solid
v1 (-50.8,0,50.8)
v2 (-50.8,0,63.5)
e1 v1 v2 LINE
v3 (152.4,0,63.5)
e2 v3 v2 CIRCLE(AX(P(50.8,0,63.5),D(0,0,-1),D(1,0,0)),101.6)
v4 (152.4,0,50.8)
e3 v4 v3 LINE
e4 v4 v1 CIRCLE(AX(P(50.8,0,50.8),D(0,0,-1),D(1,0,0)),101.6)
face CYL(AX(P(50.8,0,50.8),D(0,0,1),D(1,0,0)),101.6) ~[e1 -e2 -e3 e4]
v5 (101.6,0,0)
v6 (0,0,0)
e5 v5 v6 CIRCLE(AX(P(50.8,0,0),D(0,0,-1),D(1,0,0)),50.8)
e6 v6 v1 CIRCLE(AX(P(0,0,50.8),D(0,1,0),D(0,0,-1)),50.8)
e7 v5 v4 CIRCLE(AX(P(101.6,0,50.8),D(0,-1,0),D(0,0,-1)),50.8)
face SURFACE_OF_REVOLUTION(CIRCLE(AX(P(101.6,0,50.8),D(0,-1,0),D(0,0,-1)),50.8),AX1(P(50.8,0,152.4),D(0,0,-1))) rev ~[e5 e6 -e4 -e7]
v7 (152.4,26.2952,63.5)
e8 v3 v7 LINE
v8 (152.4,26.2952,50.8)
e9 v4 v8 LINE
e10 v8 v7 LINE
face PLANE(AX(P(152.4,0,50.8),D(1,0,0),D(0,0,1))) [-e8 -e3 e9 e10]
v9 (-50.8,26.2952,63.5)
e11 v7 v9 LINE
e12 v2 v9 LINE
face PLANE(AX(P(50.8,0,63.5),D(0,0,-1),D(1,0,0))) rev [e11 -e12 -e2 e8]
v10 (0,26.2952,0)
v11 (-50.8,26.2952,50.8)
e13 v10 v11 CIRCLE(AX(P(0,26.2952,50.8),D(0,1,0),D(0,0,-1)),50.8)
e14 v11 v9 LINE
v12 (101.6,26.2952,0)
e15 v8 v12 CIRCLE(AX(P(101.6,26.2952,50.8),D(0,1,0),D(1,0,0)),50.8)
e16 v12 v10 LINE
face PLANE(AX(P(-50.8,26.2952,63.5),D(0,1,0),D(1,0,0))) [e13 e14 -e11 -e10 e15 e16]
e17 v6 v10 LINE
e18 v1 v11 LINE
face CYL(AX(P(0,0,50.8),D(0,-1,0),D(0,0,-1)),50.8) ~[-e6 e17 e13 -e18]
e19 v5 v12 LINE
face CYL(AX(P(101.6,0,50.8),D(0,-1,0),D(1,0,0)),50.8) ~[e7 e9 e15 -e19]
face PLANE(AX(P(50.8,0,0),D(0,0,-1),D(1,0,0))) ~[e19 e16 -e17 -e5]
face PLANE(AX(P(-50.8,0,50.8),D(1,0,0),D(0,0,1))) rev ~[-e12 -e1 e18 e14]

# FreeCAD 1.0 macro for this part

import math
import FreeCAD as App
import Part
import Sketcher
from FreeCAD import Vector
Q = App.Units.Quantity

doc = App.newDocument("Part")
body = doc.addObject("PartDesign::Body", "Body")

sketch1 = doc.addObject("Sketcher::SketchObject", "Sketch")
body.addObject(sketch1)
sketch1.AttachmentSupport = (doc.XZ_Plane, [""])
sketch1.MapMode = "FlatFace"
sketch1.addGeometry([
    Part.LineSegment(Vector(152.4, 50.8, 0), Vector(152.4, 63.5, 0)),
    Part.LineSegment(Vector(152.4, 63.5, 0), Vector(50.8, 63.5, 0)),
    Part.LineSegment(Vector(50.8, 63.5, 0), Vector(50.8, 0, 0)),
    Part.LineSegment(Vector(50.8, 0, 0), Vector(101.6, 0, 0)),
    Part.ArcOfCircle(Part.Circle(Vector(101.6, 50.8, 0), Vector(0, 0, 1), 50.8), math.radians(-90), math.radians(0)),
], False)
sketch1.addGeometry(Part.LineSegment(Vector(50.8, 63.5, 0), Vector(50.8, 0, 0)), True)
sketch1.addConstraint([
    Sketcher.Constraint("Coincident", 0, 2, 1, 1),
    Sketcher.Constraint("Coincident", 1, 2, 2, 1),
    Sketcher.Constraint("Coincident", 2, 2, 3, 1),
    Sketcher.Constraint("Tangent", 3, 2, 4, 1),
    Sketcher.Constraint("Tangent", 4, 2, 0, 1),
    Sketcher.Constraint("Vertical", 0),
    Sketcher.Constraint("Horizontal", 1),
    Sketcher.Constraint("Vertical", 2),
    Sketcher.Constraint("Horizontal", 3),
    Sketcher.Constraint("Vertical", 5),
    Sketcher.Constraint("Coincident", 5, 1, 1, 2),
    Sketcher.Constraint("PointOnObject", 2, 2, -1),
    Sketcher.Constraint("PointOnObject", 5, 2, -1),
    Sketcher.Constraint("Radius", 4, Q("2 in")),
    Sketcher.Constraint("DistanceX", 1, 2, 1, 1, Q("4 in")),
    Sketcher.Constraint("DistanceY", 0, 1, 0, 2, Q("0.5 in")),
    Sketcher.Constraint("DistanceX", -1, 1, 4, 3, Q("4 in")),
])
revolution = doc.addObject("PartDesign::Revolution", "Revolution")
body.addObject(revolution)
revolution.Profile = sketch1
revolution.ReferenceAxis = (sketch1, ["Axis0"])
revolution.Angle = 180

sketch2 = doc.addObject("Sketcher::SketchObject", "Sketch001")
body.addObject(sketch2)
sketch2.AttachmentSupport = (doc.XZ_Plane, [""])
sketch2.MapMode = "FlatFace"
sketch2.addGeometry([
    Part.LineSegment(Vector(152.4, 63.5, 0), Vector(152.4, 50.8, 0)),
    Part.ArcOfCircle(Part.Circle(Vector(101.6, 50.8, 0), Vector(0, 0, 1), 50.8), math.radians(-90), math.radians(0)),
    Part.LineSegment(Vector(101.6, 0, 0), Vector(0, 0, 0)),
    Part.ArcOfCircle(Part.Circle(Vector(0, 50.8, 0), Vector(0, 0, 1), 50.8), math.radians(180), math.radians(270)),
    Part.LineSegment(Vector(-50.8, 50.8, 0), Vector(-50.8, 63.5, 0)),
    Part.LineSegment(Vector(-50.8, 63.5, 0), Vector(152.4, 63.5, 0)),
], False)
sketch2.addConstraint([
    Sketcher.Constraint("Tangent", 0, 2, 1, 2),
    Sketcher.Constraint("Tangent", 1, 1, 2, 1),
    Sketcher.Constraint("Tangent", 2, 2, 3, 2),
    Sketcher.Constraint("Tangent", 3, 1, 4, 1),
    Sketcher.Constraint("Coincident", 4, 2, 5, 1),
    Sketcher.Constraint("Coincident", 5, 2, 0, 1),
    Sketcher.Constraint("Vertical", 0),
    Sketcher.Constraint("Horizontal", 2),
    Sketcher.Constraint("Vertical", 4),
    Sketcher.Constraint("Horizontal", 5),
    Sketcher.Constraint("Coincident", 2, 2, -1, 1),
    Sketcher.Constraint("Equal", 1, 3),
    Sketcher.Constraint("Radius", 1, Q("2 in")),
    Sketcher.Constraint("DistanceX", 2, 2, 2, 1, Q("4 in")),
    Sketcher.Constraint("DistanceY", 0, 2, 0, 1, Q("0.5 in")),
])
pad1 = doc.addObject("PartDesign::Pad", "Pad")
body.addObject(pad1)
pad1.Profile = sketch2
pad1.Length = 26.2952
pad1.Reversed = True

doc.recompute()
